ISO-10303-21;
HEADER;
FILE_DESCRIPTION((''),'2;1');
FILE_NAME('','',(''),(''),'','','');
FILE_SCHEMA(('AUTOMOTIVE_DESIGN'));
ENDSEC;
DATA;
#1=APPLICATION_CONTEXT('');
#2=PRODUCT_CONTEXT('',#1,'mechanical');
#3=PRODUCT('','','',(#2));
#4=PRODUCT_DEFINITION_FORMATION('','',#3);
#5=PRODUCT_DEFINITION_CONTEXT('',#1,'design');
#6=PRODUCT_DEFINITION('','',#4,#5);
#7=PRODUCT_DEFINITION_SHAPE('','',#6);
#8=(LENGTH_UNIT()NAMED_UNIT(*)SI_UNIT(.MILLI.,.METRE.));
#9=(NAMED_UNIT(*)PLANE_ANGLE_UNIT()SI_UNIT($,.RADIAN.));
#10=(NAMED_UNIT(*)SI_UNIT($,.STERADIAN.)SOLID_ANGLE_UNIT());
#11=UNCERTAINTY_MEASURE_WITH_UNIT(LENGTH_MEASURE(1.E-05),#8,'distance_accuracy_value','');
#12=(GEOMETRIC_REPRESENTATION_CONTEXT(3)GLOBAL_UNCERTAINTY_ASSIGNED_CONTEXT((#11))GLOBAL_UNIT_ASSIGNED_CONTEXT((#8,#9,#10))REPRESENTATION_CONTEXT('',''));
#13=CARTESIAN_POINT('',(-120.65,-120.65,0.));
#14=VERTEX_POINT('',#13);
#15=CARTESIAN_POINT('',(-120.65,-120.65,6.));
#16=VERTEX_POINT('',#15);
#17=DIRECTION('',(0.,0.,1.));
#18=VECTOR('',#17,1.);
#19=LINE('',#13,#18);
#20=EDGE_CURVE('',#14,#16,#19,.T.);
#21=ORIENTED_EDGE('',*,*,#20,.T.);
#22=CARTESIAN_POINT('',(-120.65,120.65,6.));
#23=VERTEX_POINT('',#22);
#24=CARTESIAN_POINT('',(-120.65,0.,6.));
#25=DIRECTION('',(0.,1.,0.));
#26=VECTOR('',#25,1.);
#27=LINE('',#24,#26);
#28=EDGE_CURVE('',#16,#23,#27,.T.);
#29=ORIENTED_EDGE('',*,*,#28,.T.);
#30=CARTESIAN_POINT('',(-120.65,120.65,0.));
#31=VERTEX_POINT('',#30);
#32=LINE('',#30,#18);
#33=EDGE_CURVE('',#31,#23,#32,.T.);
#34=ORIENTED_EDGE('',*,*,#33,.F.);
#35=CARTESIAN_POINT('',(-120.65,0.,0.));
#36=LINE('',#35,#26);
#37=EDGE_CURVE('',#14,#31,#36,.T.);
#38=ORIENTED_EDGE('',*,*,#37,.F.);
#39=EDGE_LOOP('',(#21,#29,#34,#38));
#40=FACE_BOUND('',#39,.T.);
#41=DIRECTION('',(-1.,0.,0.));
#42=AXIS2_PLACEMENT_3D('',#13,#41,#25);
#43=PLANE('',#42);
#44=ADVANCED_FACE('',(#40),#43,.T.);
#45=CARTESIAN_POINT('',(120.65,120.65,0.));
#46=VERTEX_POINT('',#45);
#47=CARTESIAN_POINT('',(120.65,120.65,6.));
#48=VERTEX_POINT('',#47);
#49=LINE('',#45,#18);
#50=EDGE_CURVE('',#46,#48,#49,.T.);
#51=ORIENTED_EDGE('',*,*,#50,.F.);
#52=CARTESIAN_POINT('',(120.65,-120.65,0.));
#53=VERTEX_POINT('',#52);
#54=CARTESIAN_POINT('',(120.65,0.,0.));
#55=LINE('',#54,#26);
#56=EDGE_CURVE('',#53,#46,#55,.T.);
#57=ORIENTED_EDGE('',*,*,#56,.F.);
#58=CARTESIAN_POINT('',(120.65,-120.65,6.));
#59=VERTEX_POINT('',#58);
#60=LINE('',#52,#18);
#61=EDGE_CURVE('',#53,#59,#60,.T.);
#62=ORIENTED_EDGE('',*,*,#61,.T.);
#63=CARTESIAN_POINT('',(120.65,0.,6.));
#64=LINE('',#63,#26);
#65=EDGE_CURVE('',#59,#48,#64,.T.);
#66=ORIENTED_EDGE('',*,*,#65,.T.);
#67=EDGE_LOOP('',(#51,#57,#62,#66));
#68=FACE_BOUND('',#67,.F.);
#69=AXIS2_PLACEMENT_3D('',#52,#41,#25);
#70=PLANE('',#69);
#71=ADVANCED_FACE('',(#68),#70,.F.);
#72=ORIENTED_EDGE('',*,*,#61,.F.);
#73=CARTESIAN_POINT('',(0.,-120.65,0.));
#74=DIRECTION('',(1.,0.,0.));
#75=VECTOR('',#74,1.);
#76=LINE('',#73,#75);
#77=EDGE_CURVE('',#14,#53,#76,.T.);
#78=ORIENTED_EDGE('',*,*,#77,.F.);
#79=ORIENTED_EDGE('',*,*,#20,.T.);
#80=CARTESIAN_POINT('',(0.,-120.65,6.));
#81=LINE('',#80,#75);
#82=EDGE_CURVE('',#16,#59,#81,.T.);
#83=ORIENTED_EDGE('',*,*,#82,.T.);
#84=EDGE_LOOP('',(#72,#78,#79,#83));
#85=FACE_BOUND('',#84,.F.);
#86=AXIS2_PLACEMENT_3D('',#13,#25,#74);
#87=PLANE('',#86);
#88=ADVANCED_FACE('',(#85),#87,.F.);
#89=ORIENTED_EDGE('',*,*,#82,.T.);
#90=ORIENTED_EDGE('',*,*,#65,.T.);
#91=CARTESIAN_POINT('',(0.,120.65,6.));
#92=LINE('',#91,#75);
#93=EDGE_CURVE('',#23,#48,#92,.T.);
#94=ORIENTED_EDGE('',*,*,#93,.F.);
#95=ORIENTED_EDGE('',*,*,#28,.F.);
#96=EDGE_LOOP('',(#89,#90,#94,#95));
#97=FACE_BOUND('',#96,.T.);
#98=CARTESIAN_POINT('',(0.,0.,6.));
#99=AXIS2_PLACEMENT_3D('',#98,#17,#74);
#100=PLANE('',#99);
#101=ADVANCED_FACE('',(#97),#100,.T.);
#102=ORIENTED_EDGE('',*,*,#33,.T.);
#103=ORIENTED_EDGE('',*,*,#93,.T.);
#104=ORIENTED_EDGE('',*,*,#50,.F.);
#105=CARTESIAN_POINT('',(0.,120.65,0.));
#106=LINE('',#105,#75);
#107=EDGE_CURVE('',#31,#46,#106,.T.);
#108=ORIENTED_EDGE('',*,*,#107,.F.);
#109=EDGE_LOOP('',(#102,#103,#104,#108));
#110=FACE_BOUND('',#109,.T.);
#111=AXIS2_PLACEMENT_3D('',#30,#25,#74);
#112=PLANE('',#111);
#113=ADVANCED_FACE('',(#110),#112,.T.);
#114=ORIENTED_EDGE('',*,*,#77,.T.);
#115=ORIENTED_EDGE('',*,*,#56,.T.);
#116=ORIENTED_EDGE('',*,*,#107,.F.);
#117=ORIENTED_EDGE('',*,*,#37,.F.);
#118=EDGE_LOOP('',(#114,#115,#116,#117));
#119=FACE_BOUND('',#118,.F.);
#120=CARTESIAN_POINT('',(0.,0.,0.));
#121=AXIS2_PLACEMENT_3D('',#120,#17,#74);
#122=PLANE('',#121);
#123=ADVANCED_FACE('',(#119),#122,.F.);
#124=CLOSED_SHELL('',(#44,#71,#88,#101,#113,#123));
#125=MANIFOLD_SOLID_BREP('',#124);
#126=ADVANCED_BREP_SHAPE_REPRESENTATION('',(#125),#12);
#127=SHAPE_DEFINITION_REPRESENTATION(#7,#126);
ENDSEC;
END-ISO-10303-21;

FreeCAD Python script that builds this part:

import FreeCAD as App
import Part
import Sketcher

V = App.Vector

doc = App.newDocument("Part")
body = doc.addObject("PartDesign::Body", "Body")

sketch1 = body.newObject("Sketcher::SketchObject", "Sketch")
sketch1.AttachmentSupport = (doc.getObject("XY_Plane"), [""])
sketch1.MapMode = "FlatFace"
sketch1.addGeometry(Part.LineSegment(V(-121, 121, 0), V(-121, -121, 0)), False)
sketch1.addGeometry(Part.LineSegment(V(-121, -121, 0), V(121, -121, 0)), False)
sketch1.addGeometry(Part.LineSegment(V(121, -121, 0), V(121, 121, 0)), False)
sketch1.addGeometry(Part.LineSegment(V(121, 121, 0), V(-121, 121, 0)), False)
sketch1.addConstraint(Sketcher.Constraint("Coincident", 0, 2, 1, 1))
sketch1.addConstraint(Sketcher.Constraint("Coincident", 1, 2, 2, 1))
sketch1.addConstraint(Sketcher.Constraint("Coincident", 2, 2, 3, 1))
sketch1.addConstraint(Sketcher.Constraint("Coincident", 3, 2, 0, 1))
sketch1.addConstraint(Sketcher.Constraint("Vertical", 0))
sketch1.addConstraint(Sketcher.Constraint("Horizontal", 1))
sketch1.addConstraint(Sketcher.Constraint("Vertical", 2))
sketch1.addConstraint(Sketcher.Constraint("Horizontal", 3))
sketch1.addConstraint(Sketcher.Constraint("Symmetric", 0, 2, 2, 2, -1, 1))
sketch1.addConstraint(Sketcher.Constraint("Equal", 3, 0))
sketch1.addConstraint(Sketcher.Constraint("DistanceX", 1, 1, 1, 2, 241.3))
pad1 = body.newObject("PartDesign::Pad", "Pad")
pad1.Profile = sketch1
pad1.Length = 6

doc.recompute()
